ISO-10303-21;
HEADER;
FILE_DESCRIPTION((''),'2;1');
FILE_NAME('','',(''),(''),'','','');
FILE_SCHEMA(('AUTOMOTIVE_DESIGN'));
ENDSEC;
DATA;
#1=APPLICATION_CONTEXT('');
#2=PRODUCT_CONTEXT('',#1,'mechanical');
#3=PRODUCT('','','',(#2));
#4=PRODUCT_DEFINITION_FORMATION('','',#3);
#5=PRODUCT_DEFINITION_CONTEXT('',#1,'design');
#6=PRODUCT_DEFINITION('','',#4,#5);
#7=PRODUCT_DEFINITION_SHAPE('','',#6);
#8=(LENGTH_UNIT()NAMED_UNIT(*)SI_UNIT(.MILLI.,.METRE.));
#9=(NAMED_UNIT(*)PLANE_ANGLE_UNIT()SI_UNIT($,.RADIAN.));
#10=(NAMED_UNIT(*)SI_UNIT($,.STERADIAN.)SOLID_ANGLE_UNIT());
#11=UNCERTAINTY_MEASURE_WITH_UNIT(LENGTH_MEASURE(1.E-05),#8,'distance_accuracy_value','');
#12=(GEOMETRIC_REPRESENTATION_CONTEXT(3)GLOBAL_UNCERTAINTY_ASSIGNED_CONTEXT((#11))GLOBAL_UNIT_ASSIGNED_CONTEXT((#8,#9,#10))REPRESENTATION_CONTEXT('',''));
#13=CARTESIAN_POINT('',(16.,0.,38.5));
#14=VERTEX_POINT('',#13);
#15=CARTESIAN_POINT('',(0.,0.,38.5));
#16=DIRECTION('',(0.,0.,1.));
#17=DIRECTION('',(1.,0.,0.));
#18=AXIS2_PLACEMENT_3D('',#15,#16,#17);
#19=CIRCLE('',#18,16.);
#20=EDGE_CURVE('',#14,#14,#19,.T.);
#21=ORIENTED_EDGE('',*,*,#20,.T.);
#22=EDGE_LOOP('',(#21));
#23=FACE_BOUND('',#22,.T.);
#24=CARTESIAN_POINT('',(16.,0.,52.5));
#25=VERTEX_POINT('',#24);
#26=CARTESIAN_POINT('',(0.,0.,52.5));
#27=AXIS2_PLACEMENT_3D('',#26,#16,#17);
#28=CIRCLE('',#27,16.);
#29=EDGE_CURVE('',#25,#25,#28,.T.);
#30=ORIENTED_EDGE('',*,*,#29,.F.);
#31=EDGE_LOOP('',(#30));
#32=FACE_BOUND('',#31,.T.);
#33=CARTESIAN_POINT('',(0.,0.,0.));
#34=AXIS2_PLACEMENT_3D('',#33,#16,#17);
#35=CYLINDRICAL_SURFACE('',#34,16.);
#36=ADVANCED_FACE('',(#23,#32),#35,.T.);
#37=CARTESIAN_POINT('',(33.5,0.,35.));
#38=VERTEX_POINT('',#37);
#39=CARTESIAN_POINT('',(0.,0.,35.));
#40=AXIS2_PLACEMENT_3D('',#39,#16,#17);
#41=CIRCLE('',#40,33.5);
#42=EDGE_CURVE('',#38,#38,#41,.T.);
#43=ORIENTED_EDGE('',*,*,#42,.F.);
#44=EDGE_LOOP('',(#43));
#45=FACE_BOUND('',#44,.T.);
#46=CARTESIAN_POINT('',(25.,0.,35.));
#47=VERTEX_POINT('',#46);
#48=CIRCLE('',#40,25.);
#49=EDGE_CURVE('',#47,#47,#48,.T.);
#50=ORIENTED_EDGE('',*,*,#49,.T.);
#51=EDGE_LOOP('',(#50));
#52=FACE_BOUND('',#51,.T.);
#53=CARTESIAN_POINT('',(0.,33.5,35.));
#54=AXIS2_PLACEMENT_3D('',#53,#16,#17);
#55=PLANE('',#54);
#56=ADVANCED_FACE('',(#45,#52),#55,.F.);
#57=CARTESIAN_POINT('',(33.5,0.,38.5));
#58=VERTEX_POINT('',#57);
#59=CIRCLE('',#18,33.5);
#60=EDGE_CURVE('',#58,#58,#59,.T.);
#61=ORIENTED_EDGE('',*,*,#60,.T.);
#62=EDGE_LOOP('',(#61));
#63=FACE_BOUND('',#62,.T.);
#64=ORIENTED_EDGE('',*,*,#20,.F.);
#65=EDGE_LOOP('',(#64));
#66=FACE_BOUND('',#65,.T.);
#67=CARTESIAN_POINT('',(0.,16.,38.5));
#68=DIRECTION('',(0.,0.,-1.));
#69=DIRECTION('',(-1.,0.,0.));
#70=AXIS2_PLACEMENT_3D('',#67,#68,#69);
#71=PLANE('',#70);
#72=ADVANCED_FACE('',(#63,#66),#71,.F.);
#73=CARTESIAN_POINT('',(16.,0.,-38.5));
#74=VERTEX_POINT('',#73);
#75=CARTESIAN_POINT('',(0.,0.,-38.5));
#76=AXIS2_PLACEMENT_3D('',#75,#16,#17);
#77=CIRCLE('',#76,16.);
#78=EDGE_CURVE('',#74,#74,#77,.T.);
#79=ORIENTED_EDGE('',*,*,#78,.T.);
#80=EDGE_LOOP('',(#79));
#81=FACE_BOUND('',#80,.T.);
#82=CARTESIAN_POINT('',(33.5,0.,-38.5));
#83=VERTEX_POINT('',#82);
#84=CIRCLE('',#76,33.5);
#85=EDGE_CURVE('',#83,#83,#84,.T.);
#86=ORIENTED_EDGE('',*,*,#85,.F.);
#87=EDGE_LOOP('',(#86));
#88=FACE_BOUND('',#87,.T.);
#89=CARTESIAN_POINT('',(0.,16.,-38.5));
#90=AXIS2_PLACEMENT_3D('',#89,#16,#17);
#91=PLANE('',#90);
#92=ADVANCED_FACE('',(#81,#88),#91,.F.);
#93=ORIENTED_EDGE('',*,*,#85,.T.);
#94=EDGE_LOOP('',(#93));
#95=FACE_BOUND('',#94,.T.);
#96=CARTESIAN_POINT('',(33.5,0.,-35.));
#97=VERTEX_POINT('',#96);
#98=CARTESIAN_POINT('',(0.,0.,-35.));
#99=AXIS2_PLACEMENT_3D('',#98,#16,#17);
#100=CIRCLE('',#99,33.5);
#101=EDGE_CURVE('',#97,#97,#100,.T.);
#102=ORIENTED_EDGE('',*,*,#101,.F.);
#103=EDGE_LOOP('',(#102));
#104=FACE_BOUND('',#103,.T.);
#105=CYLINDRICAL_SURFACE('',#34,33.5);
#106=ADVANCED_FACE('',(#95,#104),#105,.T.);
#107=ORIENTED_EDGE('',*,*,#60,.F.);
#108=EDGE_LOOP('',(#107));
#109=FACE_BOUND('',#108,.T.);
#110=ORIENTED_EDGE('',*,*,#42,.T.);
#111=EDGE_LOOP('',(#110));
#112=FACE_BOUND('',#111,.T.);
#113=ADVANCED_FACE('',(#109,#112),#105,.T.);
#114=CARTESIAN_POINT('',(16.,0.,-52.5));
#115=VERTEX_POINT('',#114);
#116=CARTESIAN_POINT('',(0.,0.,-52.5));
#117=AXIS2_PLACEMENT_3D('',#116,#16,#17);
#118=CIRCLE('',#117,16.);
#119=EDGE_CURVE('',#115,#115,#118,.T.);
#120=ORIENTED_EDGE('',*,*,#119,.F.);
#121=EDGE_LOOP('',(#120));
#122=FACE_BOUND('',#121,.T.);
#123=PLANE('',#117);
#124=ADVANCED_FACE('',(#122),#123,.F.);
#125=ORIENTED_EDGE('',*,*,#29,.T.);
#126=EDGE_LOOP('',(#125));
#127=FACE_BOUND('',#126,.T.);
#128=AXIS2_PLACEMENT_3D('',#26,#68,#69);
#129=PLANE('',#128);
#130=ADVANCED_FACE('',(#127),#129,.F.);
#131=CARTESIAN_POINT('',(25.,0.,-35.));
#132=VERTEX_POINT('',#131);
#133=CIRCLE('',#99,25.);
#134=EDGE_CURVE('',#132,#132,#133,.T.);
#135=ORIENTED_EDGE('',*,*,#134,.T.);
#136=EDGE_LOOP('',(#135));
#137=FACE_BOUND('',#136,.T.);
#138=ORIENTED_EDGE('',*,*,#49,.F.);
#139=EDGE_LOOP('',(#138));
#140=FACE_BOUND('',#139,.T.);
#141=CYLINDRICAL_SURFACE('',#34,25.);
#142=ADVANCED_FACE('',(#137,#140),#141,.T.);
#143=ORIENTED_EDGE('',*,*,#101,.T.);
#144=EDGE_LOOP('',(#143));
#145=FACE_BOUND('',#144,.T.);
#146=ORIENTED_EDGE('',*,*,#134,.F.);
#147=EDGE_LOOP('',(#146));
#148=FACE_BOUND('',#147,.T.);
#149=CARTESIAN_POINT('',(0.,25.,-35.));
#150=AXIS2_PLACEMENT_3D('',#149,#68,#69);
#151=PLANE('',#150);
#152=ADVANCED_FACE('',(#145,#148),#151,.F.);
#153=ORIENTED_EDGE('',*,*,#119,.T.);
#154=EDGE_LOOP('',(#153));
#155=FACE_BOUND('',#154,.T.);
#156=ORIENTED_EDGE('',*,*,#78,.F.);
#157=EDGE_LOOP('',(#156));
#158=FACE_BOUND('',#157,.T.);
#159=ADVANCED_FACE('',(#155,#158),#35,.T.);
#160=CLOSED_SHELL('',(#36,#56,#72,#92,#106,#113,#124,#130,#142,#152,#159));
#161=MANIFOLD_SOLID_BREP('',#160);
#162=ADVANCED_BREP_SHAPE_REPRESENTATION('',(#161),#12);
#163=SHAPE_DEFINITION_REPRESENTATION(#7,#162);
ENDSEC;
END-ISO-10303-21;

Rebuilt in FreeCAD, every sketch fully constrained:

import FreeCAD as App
import Part
import Sketcher

V = App.Vector
Q = App.Units.Quantity

doc = App.newDocument("Part")
body = doc.addObject("PartDesign::Body", "Body")

# Sketch on YZ plane
sketch1 = body.newObject("Sketcher::SketchObject", "Sketch")
sketch1.AttachmentSupport = (doc.getObject("YZ_Plane"), [""])
sketch1.MapMode = "FlatFace"
sketch1.addGeometry([
    Part.LineSegment(V(0, -52.5, 0), V(16, -52.5, 0)),  # 0
    Part.LineSegment(V(16, -52.5, 0), V(16, -38.5, 0)),  # 1
    Part.LineSegment(V(16, -38.5, 0), V(33.5, -38.5, 0)),  # 2
    Part.LineSegment(V(33.5, -38.5, 0), V(33.5, -35, 0)),  # 3
    Part.LineSegment(V(33.5, -35, 0), V(25, -35, 0)),  # 4
    Part.LineSegment(V(25, -35, 0), V(25, 35, 0)),  # 5
    Part.LineSegment(V(25, 35, 0), V(33.5, 35, 0)),  # 6
    Part.LineSegment(V(33.5, 35, 0), V(33.5, 38.5, 0)),  # 7
    Part.LineSegment(V(33.5, 38.5, 0), V(16, 38.5, 0)),  # 8
    Part.LineSegment(V(16, 38.5, 0), V(16, 52.5, 0)),  # 9
    Part.LineSegment(V(16, 52.5, 0), V(0, 52.5, 0)),  # 10
    Part.LineSegment(V(0, 52.5, 0), V(0, -52.5, 0)),  # 11
], False)
sketch1.addConstraint([
    Sketcher.Constraint("Coincident", 0, 2, 1, 1),
    Sketcher.Constraint("Coincident", 1, 2, 2, 1),
    Sketcher.Constraint("Coincident", 2, 2, 3, 1),
    Sketcher.Constraint("Coincident", 3, 2, 4, 1),
    Sketcher.Constraint("Coincident", 4, 2, 5, 1),
    Sketcher.Constraint("Coincident", 5, 2, 6, 1),
    Sketcher.Constraint("Coincident", 6, 2, 7, 1),
    Sketcher.Constraint("Coincident", 7, 2, 8, 1),
    Sketcher.Constraint("Coincident", 8, 2, 9, 1),
    Sketcher.Constraint("Coincident", 9, 2, 10, 1),
    Sketcher.Constraint("Coincident", 10, 2, 11, 1),
    Sketcher.Constraint("Coincident", 11, 2, 0, 1),
    Sketcher.Constraint("Horizontal", 0),
    Sketcher.Constraint("Vertical", 1),
    Sketcher.Constraint("Horizontal", 2),
    Sketcher.Constraint("Vertical", 3),
    Sketcher.Constraint("Horizontal", 4),
    Sketcher.Constraint("Vertical", 5),
    Sketcher.Constraint("Horizontal", 6),
    Sketcher.Constraint("Vertical", 7),
    Sketcher.Constraint("Horizontal", 8),
    Sketcher.Constraint("Vertical", 9),
    Sketcher.Constraint("Horizontal", 10),
    Sketcher.Constraint("Vertical", 11),
    Sketcher.Constraint("Symmetric", 10, 2, 11, 2, -1, 1),
    Sketcher.Constraint("Symmetric", 3, 2, 6, 2, -1),
    Sketcher.Constraint("Symmetric", 1, 2, 8, 2, -1),
    Sketcher.Constraint("DistanceX", 0, 1, 0, 2, Q("16 mm")),
    Sketcher.Constraint("DistanceY", 1, 1, 1, 2, Q("14 mm")),
    Sketcher.Constraint("DistanceY", 5, 1, 5, 2, Q("70 mm")),
    Sketcher.Constraint("DistanceY", 11, 2, 11, 1, Q("105 mm")),
    Sketcher.Constraint("DistanceX", 2, 1, 2, 2, Q("17.5 mm")),
    Sketcher.Constraint("DistanceX", 4, 2, 4, 1, Q("8.5 mm")),
])
revolution = body.newObject("PartDesign::Revolution", "Revolution")
revolution.Profile = sketch1
revolution.ReferenceAxis = (sketch1, ["V_Axis"])
revolution.Angle = 360

doc.recompute()
